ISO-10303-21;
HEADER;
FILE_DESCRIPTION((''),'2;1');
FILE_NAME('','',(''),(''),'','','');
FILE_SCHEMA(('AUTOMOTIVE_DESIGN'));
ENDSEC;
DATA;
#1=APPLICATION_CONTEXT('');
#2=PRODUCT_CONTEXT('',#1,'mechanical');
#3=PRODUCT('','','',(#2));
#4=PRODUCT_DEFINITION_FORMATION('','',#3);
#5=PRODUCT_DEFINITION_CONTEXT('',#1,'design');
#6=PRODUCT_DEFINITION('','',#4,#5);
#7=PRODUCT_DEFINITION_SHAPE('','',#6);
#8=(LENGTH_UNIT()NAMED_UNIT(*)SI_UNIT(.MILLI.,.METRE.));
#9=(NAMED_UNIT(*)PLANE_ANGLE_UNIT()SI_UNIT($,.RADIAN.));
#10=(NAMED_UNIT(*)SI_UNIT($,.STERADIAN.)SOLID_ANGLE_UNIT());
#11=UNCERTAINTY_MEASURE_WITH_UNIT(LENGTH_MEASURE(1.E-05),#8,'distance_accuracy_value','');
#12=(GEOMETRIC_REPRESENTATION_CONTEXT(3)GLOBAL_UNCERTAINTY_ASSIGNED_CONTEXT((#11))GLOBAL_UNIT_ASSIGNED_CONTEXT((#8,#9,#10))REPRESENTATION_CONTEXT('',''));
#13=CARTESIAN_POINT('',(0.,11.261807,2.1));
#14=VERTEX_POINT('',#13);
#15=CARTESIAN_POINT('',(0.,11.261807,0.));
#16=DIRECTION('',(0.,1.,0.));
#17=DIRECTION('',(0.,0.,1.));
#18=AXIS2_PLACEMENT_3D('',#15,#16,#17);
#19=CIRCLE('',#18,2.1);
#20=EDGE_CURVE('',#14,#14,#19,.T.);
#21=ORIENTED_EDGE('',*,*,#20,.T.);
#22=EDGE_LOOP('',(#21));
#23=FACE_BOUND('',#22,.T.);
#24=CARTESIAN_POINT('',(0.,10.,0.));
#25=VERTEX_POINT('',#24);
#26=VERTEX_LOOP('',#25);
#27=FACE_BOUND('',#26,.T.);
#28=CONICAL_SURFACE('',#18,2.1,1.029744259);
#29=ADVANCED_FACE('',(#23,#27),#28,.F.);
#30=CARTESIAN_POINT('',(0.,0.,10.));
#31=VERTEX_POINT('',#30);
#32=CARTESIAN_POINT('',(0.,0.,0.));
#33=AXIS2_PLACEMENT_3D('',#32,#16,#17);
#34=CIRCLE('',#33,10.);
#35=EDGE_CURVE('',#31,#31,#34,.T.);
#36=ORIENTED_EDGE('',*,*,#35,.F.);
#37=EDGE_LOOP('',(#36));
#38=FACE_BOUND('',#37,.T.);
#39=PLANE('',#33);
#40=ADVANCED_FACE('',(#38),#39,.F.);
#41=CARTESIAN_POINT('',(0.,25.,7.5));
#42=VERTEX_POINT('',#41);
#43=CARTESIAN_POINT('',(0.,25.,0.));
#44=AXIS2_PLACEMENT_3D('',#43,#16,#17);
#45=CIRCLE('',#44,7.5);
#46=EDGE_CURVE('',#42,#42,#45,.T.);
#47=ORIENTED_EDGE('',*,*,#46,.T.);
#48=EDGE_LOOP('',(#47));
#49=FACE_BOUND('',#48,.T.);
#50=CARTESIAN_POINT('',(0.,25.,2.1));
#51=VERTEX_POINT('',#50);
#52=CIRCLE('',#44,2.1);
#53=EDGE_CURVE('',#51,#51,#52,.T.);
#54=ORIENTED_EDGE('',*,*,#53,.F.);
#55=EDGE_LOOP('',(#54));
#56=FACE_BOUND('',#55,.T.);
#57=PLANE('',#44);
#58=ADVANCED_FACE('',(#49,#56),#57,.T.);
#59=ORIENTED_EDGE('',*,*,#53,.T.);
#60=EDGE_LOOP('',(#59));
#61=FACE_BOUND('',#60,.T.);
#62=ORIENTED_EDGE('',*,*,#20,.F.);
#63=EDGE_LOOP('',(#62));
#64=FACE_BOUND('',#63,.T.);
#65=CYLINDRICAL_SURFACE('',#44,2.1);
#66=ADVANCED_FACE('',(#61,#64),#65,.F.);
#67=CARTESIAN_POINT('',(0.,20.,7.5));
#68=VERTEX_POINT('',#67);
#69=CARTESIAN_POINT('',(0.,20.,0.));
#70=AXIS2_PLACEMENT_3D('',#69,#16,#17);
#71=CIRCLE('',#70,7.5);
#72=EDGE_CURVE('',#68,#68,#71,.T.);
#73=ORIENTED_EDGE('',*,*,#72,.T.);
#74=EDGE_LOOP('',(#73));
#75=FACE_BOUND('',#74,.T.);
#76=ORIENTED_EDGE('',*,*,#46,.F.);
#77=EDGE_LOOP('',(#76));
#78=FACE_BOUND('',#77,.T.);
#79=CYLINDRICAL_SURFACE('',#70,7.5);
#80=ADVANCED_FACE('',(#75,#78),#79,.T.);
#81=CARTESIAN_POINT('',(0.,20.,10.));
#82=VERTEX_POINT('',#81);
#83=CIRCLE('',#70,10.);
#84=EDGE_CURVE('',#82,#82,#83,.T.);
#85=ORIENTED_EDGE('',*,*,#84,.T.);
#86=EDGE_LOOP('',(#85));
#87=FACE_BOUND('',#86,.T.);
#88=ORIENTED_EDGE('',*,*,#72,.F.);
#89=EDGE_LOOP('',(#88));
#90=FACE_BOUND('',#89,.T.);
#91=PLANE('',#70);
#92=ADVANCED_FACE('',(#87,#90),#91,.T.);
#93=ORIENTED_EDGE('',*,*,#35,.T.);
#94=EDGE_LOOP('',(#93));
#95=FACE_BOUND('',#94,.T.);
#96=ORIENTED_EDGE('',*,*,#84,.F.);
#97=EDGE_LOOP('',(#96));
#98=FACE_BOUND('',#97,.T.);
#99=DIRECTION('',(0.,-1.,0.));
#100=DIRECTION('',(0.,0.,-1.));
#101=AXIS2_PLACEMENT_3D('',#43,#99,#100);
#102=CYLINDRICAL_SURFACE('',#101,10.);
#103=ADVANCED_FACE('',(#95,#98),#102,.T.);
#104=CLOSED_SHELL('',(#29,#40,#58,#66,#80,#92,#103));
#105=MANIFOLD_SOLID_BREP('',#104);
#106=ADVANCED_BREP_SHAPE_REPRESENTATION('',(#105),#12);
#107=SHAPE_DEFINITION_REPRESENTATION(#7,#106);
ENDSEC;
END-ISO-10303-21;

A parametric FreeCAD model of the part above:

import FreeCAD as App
import Part
import Sketcher
from FreeCAD import Vector

doc = App.newDocument("Part")
body = doc.addObject("PartDesign::Body", "Body")

sketch1 = body.newObject("Sketcher::SketchObject", "Sketch")
sketch1.AttachmentSupport = (doc.getObject("XZ_Plane"), [""])
sketch1.MapMode = "FlatFace"
sketch1.addGeometry(Part.Circle(Vector(0, 0, 0), Vector(0, 0, 1), 10), False)
sketch1.addConstraint([
    Sketcher.Constraint("Coincident", 0, 3, -1, 1),
    Sketcher.Constraint("Diameter", 0, 20.0),
])
pad1 = body.newObject("PartDesign::Pad", "Pad")
pad1.Profile = sketch1
pad1.Length = 25
pad1.Reversed = True

sketch2 = body.newObject("Sketcher::SketchObject", "Sketch001")
sketch2.AttachmentSupport = (doc.getObject("XZ_Plane"), [""])
sketch2.MapMode = "FlatFace"
sketch2.AttachmentOffset = App.Placement(Vector(0, 0, -25), App.Rotation())
sketch2.addGeometry(Part.Circle(Vector(0, 0, 0), Vector(0, 0, 1), 2.1), False)
sketch2.addConstraint([
    Sketcher.Constraint("Coincident", 0, 3, -1, 1),
    Sketcher.Constraint("Diameter", 0, 4.2),
])
doc.recompute()
hole = body.newObject("PartDesign::Hole", "Hole")
hole.Profile = sketch2
hole.ThreadType = "None"
hole.Diameter = 4.2
hole.DepthType = "Dimension"
hole.Depth = 13.738193
hole.DrillPoint = "Angled"
hole.DrillPointAngle = 118
hole.Reversed = True

sketch3 = body.newObject("Sketcher::SketchObject", "Sketch002")
sketch3.AttachmentSupport = (doc.getObject("XZ_Plane"), [""])
sketch3.MapMode = "FlatFace"
sketch3.AttachmentOffset = App.Placement(Vector(0, 0, -25), App.Rotation())
sketch3.addGeometry([
    Part.Circle(Vector(0, 0, 0), Vector(0, 0, 1), 10),
    Part.Circle(Vector(0, 0, 0), Vector(0, 0, 1), 7.5),
], False)
sketch3.addConstraint([
    Sketcher.Constraint("Coincident", 0, 3, -1, 1),
    Sketcher.Constraint("Coincident", 1, 3, -1, 1),
    Sketcher.Constraint("Diameter", 0, 20.0),
    Sketcher.Constraint("Diameter", 1, 15.0),
])
pocket1 = body.newObject("PartDesign::Pocket", "Pocket")
pocket1.Profile = sketch3
pocket1.Length = 5
pocket1.Reversed = True

doc.recompute()
